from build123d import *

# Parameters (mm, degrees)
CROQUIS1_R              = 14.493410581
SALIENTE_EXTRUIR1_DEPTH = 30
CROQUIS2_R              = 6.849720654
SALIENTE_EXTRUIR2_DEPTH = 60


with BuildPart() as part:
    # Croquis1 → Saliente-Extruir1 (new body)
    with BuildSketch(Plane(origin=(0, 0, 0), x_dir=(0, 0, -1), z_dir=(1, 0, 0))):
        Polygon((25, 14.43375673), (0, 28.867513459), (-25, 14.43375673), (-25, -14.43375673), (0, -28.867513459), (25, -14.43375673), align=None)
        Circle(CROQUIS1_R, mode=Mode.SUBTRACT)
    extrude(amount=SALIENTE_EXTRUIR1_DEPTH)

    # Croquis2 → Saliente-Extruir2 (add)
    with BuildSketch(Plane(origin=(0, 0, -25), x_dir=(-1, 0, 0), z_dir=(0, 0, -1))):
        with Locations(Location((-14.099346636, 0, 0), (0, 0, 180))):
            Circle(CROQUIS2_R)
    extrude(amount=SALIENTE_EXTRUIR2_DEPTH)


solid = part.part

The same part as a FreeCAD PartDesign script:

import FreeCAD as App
import Part
import Sketcher

V = App.Vector
Q = App.Units.Quantity

doc = App.newDocument("Part")
body = doc.addObject("PartDesign::Body", "Body")

sketch1 = body.newObject("Sketcher::SketchObject", "Sketch")
sketch1.AttachmentSupport = (doc.getObject("YZ_Plane"), [""])
sketch1.MapMode = "FlatFace"
sketch1.addGeometry([
    Part.LineSegment(V(14, -25, 0), V(29, 0, 0)),
    Part.LineSegment(V(29, 0, 0), V(14, 25, 0)),
    Part.LineSegment(V(14, 25, 0), V(-14, 25, 0)),
    Part.LineSegment(V(-14, 25, 0), V(-29, 0, 0)),
    Part.LineSegment(V(-29, 0, 0), V(-14, -25, 0)),
    Part.LineSegment(V(-14, -25, 0), V(14, -25, 0)),
    Part.Circle(V(0, 0, 0), V(0, 0, 1), 14),
], False)
sketch1.addConstraint([
    Sketcher.Constraint("Coincident", 0, 2, 1, 1),
    Sketcher.Constraint("Coincident", 1, 2, 2, 1),
    Sketcher.Constraint("Coincident", 2, 2, 3, 1),
    Sketcher.Constraint("Coincident", 3, 2, 4, 1),
    Sketcher.Constraint("Coincident", 4, 2, 5, 1),
    Sketcher.Constraint("Coincident", 5, 2, 0, 1),
    Sketcher.Constraint("Horizontal", 2),
    Sketcher.Constraint("Horizontal", 5),
    Sketcher.Constraint("Coincident", 6, 3, -1, 1),
    Sketcher.Constraint("Symmetric", 0, 2, 3, 2, -1, 1),
    Sketcher.Constraint("Symmetric", 1, 2, 4, 2, -1, 1),
    Sketcher.Constraint("PointOnObject", 0, 2, -1),
    Sketcher.Constraint("Parallel", 0, 3),
    Sketcher.Constraint("Vertical", 2, 2, 4, 2),
    Sketcher.Constraint("Angle", 0, Q("60 deg")),
    Sketcher.Constraint("DistanceY", -1, 1, 1, 2, 25.0),
    Sketcher.Constraint("Diameter", 6, 28.986821),
    Sketcher.Constraint("DistanceX", 2, 2, 2, 1, 28.867513),
])
pad1 = body.newObject("PartDesign::Pad", "Pad")
pad1.Profile = sketch1
pad1.Length = 30

sketch2 = body.newObject("Sketcher::SketchObject", "Sketch001")
sketch2.AttachmentSupport = (doc.getObject("XY_Plane"), [""])
sketch2.MapMode = "FlatFace"
sketch2.AttachmentOffset = App.Placement(V(0, 0, -25), App.Rotation())
sketch2.addGeometry(Part.Circle(V(14, 0, 0), V(0, 0, 1), 7), False)
sketch2.addConstraint([
    Sketcher.Constraint("PointOnObject", 0, 3, -1),
    Sketcher.Constraint("Diameter", 0, 13.699441),
    Sketcher.Constraint("DistanceX", -1, 1, 0, 3, 14.099347),
])
pad2 = body.newObject("PartDesign::Pad", "Pad001")
pad2.Profile = sketch2
pad2.Length = 60
pad2.Reversed = True

doc.recompute()
